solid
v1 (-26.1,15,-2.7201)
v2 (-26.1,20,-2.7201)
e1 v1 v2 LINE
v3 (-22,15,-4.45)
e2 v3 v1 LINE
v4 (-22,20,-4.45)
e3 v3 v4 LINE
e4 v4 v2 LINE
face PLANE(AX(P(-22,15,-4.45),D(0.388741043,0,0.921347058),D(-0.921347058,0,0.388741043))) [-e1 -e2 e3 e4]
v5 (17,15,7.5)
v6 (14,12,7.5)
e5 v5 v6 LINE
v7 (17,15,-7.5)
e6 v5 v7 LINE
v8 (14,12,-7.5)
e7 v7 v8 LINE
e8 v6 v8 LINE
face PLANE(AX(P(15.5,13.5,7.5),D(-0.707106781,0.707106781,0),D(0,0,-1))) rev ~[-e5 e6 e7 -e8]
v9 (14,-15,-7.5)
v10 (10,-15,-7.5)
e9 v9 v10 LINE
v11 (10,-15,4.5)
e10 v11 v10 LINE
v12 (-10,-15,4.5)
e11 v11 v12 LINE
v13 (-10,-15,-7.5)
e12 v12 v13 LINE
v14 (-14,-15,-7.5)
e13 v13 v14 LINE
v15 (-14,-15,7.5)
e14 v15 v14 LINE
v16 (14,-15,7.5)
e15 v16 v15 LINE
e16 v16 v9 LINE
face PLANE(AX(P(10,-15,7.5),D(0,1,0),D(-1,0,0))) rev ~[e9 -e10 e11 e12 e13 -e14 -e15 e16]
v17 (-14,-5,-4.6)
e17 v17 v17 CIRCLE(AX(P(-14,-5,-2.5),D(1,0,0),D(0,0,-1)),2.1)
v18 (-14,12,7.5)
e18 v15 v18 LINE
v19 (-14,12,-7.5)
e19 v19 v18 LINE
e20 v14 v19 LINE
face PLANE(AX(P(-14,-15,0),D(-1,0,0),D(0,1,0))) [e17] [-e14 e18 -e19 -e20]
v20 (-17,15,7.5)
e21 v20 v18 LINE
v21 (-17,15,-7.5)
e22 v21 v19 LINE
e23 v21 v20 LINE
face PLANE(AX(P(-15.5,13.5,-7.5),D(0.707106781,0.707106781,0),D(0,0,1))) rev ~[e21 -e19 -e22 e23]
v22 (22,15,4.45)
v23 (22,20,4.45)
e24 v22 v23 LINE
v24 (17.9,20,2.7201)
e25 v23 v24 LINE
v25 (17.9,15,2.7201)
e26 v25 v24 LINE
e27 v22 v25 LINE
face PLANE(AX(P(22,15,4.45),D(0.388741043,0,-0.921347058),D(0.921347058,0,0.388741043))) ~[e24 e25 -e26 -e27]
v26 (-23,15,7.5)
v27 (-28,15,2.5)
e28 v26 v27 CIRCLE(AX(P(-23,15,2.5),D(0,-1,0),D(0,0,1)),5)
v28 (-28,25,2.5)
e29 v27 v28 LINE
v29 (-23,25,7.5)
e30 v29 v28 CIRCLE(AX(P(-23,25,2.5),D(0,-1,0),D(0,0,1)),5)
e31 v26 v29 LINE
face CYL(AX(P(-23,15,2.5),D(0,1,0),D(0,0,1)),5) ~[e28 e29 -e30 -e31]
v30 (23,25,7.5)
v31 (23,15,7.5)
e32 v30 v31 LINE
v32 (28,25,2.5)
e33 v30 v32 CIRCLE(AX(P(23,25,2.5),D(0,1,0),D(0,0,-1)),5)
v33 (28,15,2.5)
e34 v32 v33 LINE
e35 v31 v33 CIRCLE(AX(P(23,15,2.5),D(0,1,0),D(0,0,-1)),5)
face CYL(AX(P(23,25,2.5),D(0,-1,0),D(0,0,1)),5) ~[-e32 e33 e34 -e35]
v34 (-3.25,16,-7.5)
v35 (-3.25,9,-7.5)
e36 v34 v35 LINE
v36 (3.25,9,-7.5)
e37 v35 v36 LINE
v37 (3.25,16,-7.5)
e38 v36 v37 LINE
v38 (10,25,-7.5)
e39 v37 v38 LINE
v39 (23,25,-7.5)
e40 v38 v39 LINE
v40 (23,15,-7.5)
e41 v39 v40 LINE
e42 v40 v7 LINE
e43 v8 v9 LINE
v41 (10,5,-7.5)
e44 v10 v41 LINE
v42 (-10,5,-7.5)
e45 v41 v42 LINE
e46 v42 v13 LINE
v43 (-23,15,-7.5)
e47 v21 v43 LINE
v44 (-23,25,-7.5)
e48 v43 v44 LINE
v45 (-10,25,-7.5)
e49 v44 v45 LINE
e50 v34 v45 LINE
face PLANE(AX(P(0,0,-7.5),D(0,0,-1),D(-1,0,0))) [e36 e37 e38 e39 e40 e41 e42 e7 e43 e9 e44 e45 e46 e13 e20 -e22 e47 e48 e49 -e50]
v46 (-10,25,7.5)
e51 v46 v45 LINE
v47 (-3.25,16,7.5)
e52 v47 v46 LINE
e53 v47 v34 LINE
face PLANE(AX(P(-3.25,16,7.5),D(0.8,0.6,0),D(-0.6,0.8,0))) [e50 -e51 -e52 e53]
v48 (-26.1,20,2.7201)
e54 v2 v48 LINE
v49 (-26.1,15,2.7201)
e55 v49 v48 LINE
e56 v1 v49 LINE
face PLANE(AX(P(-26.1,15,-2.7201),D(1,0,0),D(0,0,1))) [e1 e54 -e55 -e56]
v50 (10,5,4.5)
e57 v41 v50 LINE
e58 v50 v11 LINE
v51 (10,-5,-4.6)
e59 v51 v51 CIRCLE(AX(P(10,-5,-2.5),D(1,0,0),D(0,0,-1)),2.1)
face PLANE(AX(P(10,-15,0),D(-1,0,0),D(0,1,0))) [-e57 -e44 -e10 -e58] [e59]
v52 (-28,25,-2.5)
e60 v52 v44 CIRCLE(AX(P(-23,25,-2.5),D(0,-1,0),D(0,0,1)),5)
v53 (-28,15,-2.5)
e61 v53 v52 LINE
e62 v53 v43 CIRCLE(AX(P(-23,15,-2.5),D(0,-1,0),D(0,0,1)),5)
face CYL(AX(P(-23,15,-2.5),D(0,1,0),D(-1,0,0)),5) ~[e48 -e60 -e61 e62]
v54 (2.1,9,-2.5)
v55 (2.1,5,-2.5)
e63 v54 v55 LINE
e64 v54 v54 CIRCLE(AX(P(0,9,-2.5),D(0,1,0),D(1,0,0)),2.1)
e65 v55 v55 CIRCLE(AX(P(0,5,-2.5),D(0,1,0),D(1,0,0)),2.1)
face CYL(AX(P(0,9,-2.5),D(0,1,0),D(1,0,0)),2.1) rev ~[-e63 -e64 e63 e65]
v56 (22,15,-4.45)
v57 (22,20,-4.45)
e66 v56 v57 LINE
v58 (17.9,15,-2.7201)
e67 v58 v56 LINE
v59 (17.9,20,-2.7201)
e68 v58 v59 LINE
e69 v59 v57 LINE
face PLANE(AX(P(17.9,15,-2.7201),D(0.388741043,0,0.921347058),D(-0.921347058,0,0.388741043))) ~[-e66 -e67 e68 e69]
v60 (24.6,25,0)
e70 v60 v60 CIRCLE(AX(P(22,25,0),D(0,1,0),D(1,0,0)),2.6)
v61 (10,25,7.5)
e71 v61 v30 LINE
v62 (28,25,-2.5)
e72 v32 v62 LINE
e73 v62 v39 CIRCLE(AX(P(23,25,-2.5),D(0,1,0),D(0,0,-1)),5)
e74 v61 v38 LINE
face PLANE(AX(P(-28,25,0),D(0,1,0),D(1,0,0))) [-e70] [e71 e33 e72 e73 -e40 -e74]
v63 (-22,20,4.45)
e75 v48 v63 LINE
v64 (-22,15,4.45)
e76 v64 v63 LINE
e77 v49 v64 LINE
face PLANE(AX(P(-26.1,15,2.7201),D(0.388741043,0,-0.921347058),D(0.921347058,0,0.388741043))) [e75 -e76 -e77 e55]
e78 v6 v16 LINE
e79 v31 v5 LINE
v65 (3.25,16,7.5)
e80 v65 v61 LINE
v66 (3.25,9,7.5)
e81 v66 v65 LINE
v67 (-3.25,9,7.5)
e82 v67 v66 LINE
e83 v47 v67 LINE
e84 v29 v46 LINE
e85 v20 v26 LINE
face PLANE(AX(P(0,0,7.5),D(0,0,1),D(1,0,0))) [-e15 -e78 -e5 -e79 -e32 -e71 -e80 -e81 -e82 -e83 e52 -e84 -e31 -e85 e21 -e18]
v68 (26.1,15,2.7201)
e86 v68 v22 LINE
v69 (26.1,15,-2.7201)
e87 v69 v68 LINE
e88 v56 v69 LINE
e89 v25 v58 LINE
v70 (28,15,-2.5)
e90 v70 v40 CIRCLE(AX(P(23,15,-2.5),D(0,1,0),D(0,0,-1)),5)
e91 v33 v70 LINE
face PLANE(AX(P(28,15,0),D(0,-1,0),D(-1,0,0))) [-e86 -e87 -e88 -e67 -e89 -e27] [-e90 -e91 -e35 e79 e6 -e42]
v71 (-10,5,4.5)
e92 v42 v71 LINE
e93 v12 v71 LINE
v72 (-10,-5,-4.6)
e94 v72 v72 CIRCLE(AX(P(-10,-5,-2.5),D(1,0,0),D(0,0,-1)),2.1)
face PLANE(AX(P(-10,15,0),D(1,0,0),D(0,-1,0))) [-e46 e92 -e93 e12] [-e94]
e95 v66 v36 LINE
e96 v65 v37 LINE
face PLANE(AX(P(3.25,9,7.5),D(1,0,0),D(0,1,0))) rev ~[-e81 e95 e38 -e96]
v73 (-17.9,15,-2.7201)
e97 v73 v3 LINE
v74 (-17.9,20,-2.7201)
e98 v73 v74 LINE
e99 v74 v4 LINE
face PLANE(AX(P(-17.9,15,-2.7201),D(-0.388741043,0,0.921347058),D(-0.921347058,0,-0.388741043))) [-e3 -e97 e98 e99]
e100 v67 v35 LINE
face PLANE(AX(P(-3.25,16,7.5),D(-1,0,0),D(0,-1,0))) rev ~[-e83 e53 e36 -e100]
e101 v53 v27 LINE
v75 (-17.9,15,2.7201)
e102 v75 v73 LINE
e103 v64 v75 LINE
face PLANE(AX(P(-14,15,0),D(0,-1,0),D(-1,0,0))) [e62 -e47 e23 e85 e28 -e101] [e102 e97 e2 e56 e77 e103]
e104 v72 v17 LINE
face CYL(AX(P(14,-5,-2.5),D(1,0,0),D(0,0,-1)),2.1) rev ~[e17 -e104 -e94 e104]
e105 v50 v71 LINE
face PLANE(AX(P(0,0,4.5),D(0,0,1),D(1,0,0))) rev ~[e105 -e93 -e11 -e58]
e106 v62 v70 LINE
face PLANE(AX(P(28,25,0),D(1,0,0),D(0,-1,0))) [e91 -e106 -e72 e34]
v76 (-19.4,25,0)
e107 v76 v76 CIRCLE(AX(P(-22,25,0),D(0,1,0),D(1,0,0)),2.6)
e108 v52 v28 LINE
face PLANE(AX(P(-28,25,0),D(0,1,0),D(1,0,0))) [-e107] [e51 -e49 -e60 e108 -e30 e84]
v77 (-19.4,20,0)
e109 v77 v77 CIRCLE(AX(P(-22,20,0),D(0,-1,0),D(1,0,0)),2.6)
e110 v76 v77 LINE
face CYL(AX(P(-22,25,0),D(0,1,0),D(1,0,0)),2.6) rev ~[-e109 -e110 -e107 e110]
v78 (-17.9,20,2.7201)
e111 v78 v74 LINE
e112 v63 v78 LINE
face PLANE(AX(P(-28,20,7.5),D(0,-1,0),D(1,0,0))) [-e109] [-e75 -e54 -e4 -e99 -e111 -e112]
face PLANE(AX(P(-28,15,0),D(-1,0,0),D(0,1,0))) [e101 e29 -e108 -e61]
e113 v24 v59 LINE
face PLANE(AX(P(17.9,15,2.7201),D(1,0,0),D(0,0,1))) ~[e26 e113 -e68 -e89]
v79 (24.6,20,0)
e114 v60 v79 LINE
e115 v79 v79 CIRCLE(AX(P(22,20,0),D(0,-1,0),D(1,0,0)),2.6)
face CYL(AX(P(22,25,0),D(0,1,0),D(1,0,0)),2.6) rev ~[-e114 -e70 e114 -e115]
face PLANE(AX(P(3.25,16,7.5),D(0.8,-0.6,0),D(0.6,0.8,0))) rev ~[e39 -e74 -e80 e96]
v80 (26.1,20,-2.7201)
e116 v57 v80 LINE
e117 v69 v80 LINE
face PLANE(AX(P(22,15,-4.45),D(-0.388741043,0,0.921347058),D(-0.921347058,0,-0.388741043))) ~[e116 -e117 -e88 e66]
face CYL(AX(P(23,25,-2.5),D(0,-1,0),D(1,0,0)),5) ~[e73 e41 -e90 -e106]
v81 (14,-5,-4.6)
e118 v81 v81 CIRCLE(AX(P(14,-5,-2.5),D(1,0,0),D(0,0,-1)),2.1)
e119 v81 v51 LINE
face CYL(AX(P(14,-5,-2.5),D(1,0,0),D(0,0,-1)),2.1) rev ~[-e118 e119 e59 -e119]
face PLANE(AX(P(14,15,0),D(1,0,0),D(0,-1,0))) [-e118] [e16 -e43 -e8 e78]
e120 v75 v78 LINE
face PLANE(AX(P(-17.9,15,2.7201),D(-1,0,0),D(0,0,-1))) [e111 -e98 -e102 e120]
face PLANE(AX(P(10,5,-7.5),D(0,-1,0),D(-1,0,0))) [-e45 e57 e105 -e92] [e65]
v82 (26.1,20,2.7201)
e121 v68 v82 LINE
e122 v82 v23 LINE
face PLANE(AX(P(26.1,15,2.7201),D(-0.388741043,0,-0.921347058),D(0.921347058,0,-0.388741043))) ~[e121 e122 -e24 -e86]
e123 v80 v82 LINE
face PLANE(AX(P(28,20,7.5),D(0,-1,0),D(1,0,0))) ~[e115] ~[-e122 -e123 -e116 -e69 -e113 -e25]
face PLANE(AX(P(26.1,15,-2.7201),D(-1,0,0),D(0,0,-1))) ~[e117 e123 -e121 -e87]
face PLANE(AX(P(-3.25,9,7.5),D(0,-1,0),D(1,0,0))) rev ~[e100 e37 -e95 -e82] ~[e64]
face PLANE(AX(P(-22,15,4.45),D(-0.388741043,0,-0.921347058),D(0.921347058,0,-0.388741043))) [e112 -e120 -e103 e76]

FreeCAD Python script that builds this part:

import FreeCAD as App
import Part
import Sketcher


def edges_at(feature, points):
    """Names of the edges that pass closest to the given points."""
    edges = feature.Shape.Edges
    near = lambda p: min(range(len(edges)), key=lambda i: edges[i].distToShape(Part.Vertex(*p))[0])
    return sorted({f"Edge{near(p) + 1}" for p in points})


def add_polygon(sketch, points):
    """Adds a closed chain of lines whose ends are joined by coincident constraints."""
    first, n = sketch.GeometryCount, len(points)
    for a, b in zip(points, points[1:] + points[:1]):
        sketch.addGeometry(Part.LineSegment(App.Vector(*a, 0), App.Vector(*b, 0)), False)
    for i in range(n):
        sketch.addConstraint(Sketcher.Constraint("Coincident", first + i, 2, first + (i + 1) % n, 1))

doc = App.newDocument("Part")
body = doc.addObject("PartDesign::Body", "Body")

sketch1 = doc.addObject("Sketcher::SketchObject", "Sketch")
body.addObject(sketch1)
sketch1.AttachmentSupport = (doc.XY_Plane, [""])
sketch1.MapMode = "FlatFace"
add_polygon(sketch1, [(28, 25), (-28, 25), (-28, 15), (-14, 15), (-14, -15), (-10, -15), (-10, 15), (10, 15), (10, -15), (14, -15), (14, 15), (28, 15)])
sketch1.addConstraint([
    Sketcher.Constraint("Horizontal", 0),
    Sketcher.Constraint("Vertical", 1),
    Sketcher.Constraint("Horizontal", 2),
    Sketcher.Constraint("Vertical", 3),
    Sketcher.Constraint("Horizontal", 4),
    Sketcher.Constraint("Vertical", 5),
    Sketcher.Constraint("Horizontal", 6),
    Sketcher.Constraint("Vertical", 7),
    Sketcher.Constraint("Horizontal", 8),
    Sketcher.Constraint("Vertical", 9),
    Sketcher.Constraint("Horizontal", 10),
    Sketcher.Constraint("Vertical", 11),
    Sketcher.Constraint("Symmetric", 4, 2, 6, 2, -1, 1),
    Sketcher.Constraint("Symmetric", 2, 2, 8, 2, -1, 1),
    Sketcher.Constraint("Symmetric", 1, 2, 10, 2, -2),
    Sketcher.Constraint("Horizontal", 2, 2, 5, 2),
    Sketcher.Constraint("DistanceX", 2, 1, 2, 2, 14.0),
    Sketcher.Constraint("DistanceX", 4, 1, 4, 2, 4.0),
    Sketcher.Constraint("DistanceX", 6, 1, 6, 2, 20.0),
    Sketcher.Constraint("DistanceY", 1, 2, 1, 1, 10.0),
    Sketcher.Constraint("DistanceY", 3, 2, 3, 1, 30.0),
])
pad1 = doc.addObject("PartDesign::Pad", "Pad")
body.addObject(pad1)
pad1.Profile = sketch1
pad1.Length = 15
pad1.Midplane = True

sketch2 = doc.addObject("Sketcher::SketchObject", "Sketch001")
body.addObject(sketch2)
sketch2.AttachmentSupport = (doc.XZ_Plane, [""])
sketch2.MapMode = "FlatFace"
sketch2.AttachmentOffset = App.Placement(App.Vector(0, 0, -25), App.Rotation())
sketch2.addGeometry([
    Part.Circle(App.Vector(-22, 0, 0), App.Vector(0, 0, 1), 2.6),
    Part.Circle(App.Vector(22, 0, 0), App.Vector(0, 0, 1), 2.6),
], False)
sketch2.addConstraint([
    Sketcher.Constraint("Equal", 0, 1),
    Sketcher.Constraint("Symmetric", 0, 3, 1, 3, -1, 1),
    Sketcher.Constraint("PointOnObject", 0, 3, -1),
    Sketcher.Constraint("Diameter", 0, 5.2),
    Sketcher.Constraint("DistanceX", 0, 3, -1, 1, 22.0),
])
pocket1 = doc.addObject("PartDesign::Pocket", "Pocket")
body.addObject(pocket1)
pocket1.Profile = sketch2
pocket1.Type = "UpToFirst"
pocket1.Reversed = True

sketch3 = doc.addObject("Sketcher::SketchObject", "Sketch002")
body.addObject(sketch3)
sketch3.AttachmentSupport = (doc.XZ_Plane, [""])
sketch3.MapMode = "FlatFace"
sketch3.AttachmentOffset = App.Placement(App.Vector(0, 0, -15), App.Rotation())
add_polygon(sketch3, [(-26.1, 2.7), (-26.1, -2.7), (-22, -4.5), (-17.9, -2.7), (-17.9, 2.7), (-22, 4.5)])
sketch3.addGeometry(Part.Circle(App.Vector(-22, 0, 0), App.Vector(0, 0, 1), 2.6), False)
sketch3.addConstraint([
    Sketcher.Constraint("Vertical", 0),
    Sketcher.Constraint("Vertical", 3),
    Sketcher.Constraint("Symmetric", 1, 2, 4, 2, -1),
    Sketcher.Constraint("PointOnObject", 6, 3, -1),
    Sketcher.Constraint("Parallel", 1, 4),
    Sketcher.Constraint("Parallel", 2, 5),
    Sketcher.Constraint("Horizontal", 0, 2, 2, 2),
    Sketcher.Constraint("Horizontal", 3, 2, 5, 2),
    Sketcher.Constraint("Vertical", 6, 3, 1, 2),
    Sketcher.Constraint("Diameter", 6, 5.2),
    Sketcher.Constraint("DistanceX", 0, 2, 2, 2, 8.2),
    Sketcher.Constraint("DistanceY", 1, 2, 4, 2, 8.9),
    Sketcher.Constraint("DistanceX", 6, 3, -1, 1, 22.0),
    Sketcher.Constraint("Distance", 1, 4.45),
])
pocket2 = doc.addObject("PartDesign::Pocket", "Pocket001")
body.addObject(pocket2)
pocket2.Profile = sketch3
pocket2.Length = 5
doc.recompute()

mirrored = doc.addObject("PartDesign::Mirrored", "Mirrored")
body.addObject(mirrored)
mirrored.Originals = [pocket2]
mirrored.MirrorPlane = (doc.YZ_Plane, [""])
body.Tip = mirrored

sketch4 = doc.addObject("Sketcher::SketchObject", "Sketch003")
body.addObject(sketch4)
sketch4.AttachmentSupport = (doc.YZ_Plane, [""])
sketch4.MapMode = "FlatFace"
sketch4.AttachmentOffset = App.Placement(App.Vector(0, 0, 14), App.Rotation())
sketch4.addGeometry(Part.Circle(App.Vector(-5, -2.5, 0), App.Vector(0, 0, 1), 2.1), False)
sketch4.addConstraint([
    Sketcher.Constraint("Diameter", 0, 4.2),
    Sketcher.Constraint("DistanceX", 0, 3, -1, 1, 5.0),
    Sketcher.Constraint("DistanceY", 0, 3, -1, 1, 2.5),
])
pocket3 = doc.addObject("PartDesign::Pocket", "Pocket002")
body.addObject(pocket3)
pocket3.Profile = sketch4
pocket3.Length = 28
doc.recompute()

fillet = doc.addObject("PartDesign::Fillet", "Fillet")
body.addObject(fillet)
fillet.Base = (pocket3, edges_at(pocket3, [
    (-28, 20, 7.5),
    (-28, 20, -7.5),
    (28, 20, 7.5),
    (28, 20, -7.5),
]))
fillet.Radius = 5
doc.recompute()

chamfer = doc.addObject("PartDesign::Chamfer", "Chamfer")
body.addObject(chamfer)
chamfer.Base = (fillet, edges_at(fillet, [(-14, 15, 0), (14, 15, 0)]))
chamfer.Size = 3

sketch5 = doc.addObject("Sketcher::SketchObject", "Sketch004")
body.addObject(sketch5)
sketch5.AttachmentSupport = (doc.XY_Plane, [""])
sketch5.MapMode = "FlatFace"
sketch5.AttachmentOffset = App.Placement(App.Vector(0, 0, 7.5), App.Rotation())
add_polygon(sketch5, [(10, 15), (-10, 15), (-10, -15), (10, -15)])
sketch5.addConstraint([
    Sketcher.Constraint("Horizontal", 0),
    Sketcher.Constraint("Vertical", 1),
    Sketcher.Constraint("Horizontal", 2),
    Sketcher.Constraint("Vertical", 3),
    Sketcher.Constraint("Symmetric", 0, 2, 2, 2, -1, 1),
    Sketcher.Constraint("DistanceX", 0, 2, 0, 1, 20.0),
    Sketcher.Constraint("DistanceY", 1, 2, 1, 1, 30.0),
])
pad2 = doc.addObject("PartDesign::Pad", "Pad001")
body.addObject(pad2)
pad2.Profile = sketch5
pad2.Length = 3
pad2.Reversed = True

sketch6 = doc.addObject("Sketcher::SketchObject", "Sketch005")
body.addObject(sketch6)
sketch6.AttachmentSupport = (doc.XY_Plane, [""])
sketch6.MapMode = "FlatFace"
sketch6.AttachmentOffset = App.Placement(App.Vector(0, 0, -7.5), App.Rotation())
add_polygon(sketch6, [(10, 15), (10, 5), (-10, 5), (-10, 15)])
sketch6.addConstraint([
    Sketcher.Constraint("Vertical", 0),
    Sketcher.Constraint("Horizontal", 1),
    Sketcher.Constraint("Vertical", 2),
    Sketcher.Constraint("Horizontal", 3),
    Sketcher.Constraint("DistanceX", 1, 2, 1, 1, 20.0),
    Sketcher.Constraint("DistanceY", 0, 2, 0, 1, 10.0),
    Sketcher.Constraint("DistanceX", -1, 1, 0, 2, 10.0),
    Sketcher.Constraint("DistanceY", -1, 1, 0, 2, 5.0),
])
pad3 = doc.addObject("PartDesign::Pad", "Pad002")
body.addObject(pad3)
pad3.Profile = sketch6
pad3.Length = 12

sketch7 = doc.addObject("Sketcher::SketchObject", "Sketch006")
body.addObject(sketch7)
sketch7.AttachmentSupport = (doc.XY_Plane, [""])
sketch7.MapMode = "FlatFace"
sketch7.AttachmentOffset = App.Placement(App.Vector(0, 0, 7.5), App.Rotation())
add_polygon(sketch7, [(-10, 25), (-3, 16), (-3, 9), (3, 9), (3, 16), (10, 25)])
sketch7.addConstraint([
    Sketcher.Constraint("Vertical", 1),
    Sketcher.Constraint("Horizontal", 2),
    Sketcher.Constraint("Vertical", 3),
    Sketcher.Constraint("Horizontal", 5),
    Sketcher.Constraint("Symmetric", 0, 2, 3, 2, -2),
    Sketcher.Constraint("Equal", 0, 4),
    Sketcher.Constraint("DistanceX", 5, 2, 5, 1, 20.0),
    Sketcher.Constraint("DistanceX", 2, 1, 2, 2, 6.5),
    Sketcher.Constraint("DistanceY", -1, 1, 1, 2, 9.0),
    Sketcher.Constraint("DistanceY", 3, 2, 4, 2, 9.0),
    Sketcher.Constraint("DistanceY", 1, 2, 1, 1, 7.0),
])
pocket4 = doc.addObject("PartDesign::Pocket", "Pocket003")
body.addObject(pocket4)
pocket4.Profile = sketch7
pocket4.Length = 15

sketch8 = doc.addObject("Sketcher::SketchObject", "Sketch007")
body.addObject(sketch8)
sketch8.AttachmentSupport = (doc.XZ_Plane, [""])
sketch8.MapMode = "FlatFace"
sketch8.AttachmentOffset = App.Placement(App.Vector(0, 0, -9), App.Rotation())
sketch8.addGeometry(Part.Circle(App.Vector(0, -2.5, 0), App.Vector(0, 0, 1), 2.1), False)
sketch8.addConstraint([
    Sketcher.Constraint("PointOnObject", 0, 3, -2),
    Sketcher.Constraint("Diameter", 0, 4.2),
    Sketcher.Constraint("DistanceY", 0, 3, -1, 1, 2.5),
])
pocket5 = doc.addObject("PartDesign::Pocket", "Pocket004")
body.addObject(pocket5)
pocket5.Profile = sketch8
pocket5.Type = "UpToFirst"
pocket5.Reversed = True

doc.recompute()
